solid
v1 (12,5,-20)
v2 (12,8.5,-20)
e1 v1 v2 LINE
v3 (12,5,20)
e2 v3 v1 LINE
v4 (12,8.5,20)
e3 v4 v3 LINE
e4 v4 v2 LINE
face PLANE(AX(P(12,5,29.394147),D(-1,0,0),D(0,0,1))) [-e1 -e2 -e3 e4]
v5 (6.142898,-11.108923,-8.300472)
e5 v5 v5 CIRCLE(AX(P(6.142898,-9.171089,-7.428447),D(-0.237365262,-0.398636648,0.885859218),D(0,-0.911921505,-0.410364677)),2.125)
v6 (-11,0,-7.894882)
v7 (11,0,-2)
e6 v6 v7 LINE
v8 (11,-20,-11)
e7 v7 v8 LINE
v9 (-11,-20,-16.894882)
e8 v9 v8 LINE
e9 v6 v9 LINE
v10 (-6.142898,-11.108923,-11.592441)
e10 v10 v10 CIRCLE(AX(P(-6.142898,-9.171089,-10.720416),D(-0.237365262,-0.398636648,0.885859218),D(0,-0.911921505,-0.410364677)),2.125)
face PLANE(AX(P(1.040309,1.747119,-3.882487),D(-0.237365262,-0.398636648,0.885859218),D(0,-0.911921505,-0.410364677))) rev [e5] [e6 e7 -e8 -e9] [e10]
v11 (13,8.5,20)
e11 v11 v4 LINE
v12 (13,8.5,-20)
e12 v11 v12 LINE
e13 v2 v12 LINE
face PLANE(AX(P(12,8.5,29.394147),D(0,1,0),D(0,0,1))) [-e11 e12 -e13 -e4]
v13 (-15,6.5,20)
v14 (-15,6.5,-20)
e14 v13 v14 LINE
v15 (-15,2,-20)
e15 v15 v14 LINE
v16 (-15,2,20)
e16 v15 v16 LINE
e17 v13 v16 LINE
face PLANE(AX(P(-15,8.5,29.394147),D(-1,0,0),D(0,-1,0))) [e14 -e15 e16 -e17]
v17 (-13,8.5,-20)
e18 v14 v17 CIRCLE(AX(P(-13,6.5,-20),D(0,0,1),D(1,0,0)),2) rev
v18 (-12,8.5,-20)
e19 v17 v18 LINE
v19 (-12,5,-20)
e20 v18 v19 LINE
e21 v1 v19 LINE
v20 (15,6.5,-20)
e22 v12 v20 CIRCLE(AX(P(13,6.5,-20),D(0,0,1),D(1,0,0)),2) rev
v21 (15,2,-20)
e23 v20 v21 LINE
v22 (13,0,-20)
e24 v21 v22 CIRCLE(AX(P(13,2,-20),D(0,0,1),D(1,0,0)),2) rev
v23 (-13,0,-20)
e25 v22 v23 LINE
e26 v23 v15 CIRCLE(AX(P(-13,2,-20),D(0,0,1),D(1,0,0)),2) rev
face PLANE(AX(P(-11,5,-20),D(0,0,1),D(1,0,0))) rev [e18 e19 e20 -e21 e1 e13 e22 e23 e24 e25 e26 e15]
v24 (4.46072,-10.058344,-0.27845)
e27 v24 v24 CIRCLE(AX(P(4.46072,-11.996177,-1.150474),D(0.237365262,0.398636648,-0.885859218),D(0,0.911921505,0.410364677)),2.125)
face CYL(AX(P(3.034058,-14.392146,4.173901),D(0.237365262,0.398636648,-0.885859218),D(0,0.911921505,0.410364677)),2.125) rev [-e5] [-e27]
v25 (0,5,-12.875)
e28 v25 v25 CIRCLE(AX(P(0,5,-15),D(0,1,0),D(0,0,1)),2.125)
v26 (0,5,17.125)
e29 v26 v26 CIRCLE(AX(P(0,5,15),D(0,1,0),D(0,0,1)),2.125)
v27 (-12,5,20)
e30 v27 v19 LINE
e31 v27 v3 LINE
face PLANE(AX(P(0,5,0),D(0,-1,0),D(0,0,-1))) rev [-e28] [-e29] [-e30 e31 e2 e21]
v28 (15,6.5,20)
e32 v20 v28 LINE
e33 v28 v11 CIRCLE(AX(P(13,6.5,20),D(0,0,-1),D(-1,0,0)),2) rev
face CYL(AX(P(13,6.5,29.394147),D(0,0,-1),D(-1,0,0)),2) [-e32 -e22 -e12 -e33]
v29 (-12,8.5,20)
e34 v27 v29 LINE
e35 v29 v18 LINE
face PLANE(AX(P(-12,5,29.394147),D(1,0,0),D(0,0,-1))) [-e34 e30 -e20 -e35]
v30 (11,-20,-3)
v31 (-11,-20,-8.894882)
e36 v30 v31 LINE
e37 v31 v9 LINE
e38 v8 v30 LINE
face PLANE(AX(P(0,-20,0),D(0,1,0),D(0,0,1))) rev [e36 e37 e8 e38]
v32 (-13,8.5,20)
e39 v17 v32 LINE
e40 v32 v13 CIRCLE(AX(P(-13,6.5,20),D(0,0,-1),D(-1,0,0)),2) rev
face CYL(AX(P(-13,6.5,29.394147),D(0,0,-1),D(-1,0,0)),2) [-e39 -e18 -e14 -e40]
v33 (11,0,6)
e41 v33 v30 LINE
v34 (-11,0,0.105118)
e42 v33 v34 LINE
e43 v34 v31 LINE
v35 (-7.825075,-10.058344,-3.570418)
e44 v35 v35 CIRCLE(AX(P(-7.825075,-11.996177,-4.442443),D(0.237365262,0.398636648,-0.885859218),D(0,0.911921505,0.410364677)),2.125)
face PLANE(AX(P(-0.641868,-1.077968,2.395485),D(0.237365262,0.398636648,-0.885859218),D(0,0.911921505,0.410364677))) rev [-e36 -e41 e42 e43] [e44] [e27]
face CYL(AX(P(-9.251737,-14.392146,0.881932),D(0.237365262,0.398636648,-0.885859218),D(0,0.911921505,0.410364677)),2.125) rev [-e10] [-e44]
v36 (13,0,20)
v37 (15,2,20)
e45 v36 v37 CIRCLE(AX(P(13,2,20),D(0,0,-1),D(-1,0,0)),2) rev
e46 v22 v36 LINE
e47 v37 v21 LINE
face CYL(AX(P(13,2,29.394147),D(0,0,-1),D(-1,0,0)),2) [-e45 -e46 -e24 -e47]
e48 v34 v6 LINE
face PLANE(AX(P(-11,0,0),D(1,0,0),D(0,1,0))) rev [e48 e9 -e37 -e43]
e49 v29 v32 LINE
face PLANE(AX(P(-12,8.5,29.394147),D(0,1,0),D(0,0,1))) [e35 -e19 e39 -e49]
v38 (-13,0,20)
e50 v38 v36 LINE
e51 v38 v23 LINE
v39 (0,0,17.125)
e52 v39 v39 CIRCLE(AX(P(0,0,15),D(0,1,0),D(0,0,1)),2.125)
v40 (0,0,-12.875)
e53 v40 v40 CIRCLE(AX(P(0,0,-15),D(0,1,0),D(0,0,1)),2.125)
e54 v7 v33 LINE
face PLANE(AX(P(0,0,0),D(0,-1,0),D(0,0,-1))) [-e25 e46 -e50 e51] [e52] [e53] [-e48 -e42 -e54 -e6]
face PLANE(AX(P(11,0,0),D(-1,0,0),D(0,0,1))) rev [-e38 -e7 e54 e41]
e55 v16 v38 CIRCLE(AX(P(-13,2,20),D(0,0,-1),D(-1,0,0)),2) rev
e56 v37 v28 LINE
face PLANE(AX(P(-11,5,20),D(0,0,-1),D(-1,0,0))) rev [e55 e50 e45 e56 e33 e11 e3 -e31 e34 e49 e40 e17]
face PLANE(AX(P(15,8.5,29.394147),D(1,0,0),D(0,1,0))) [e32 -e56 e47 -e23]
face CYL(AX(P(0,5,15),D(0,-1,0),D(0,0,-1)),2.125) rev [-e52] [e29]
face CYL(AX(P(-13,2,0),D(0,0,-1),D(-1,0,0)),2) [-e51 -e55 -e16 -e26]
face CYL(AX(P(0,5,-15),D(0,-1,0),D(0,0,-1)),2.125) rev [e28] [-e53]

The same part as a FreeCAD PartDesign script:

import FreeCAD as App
import Part
import Sketcher

V = App.Vector
Q = App.Units.Quantity


def edges_at(feature, points):
    """Names of the edges that pass closest to the given points."""
    edges = feature.Shape.Edges
    near = lambda p: min(range(len(edges)), key=lambda i: edges[i].distToShape(Part.Vertex(*p))[0])
    return sorted({f"Edge{near(p) + 1}" for p in points})


def add_polygon(sketch, points):
    """Adds a closed chain of lines whose ends are joined by coincident constraints."""
    first, n = sketch.GeometryCount, len(points)
    for a, b in zip(points, points[1:] + points[:1]):
        sketch.addGeometry(Part.LineSegment(App.Vector(*a, 0), App.Vector(*b, 0)), False)
    for i in range(n):
        sketch.addConstraint(Sketcher.Constraint("Coincident", first + i, 2, first + (i + 1) % n, 1))

doc = App.newDocument("Part")
params = doc.addObject("Spreadsheet::Sheet", "Params")
for row, (alias, value) in enumerate([
    ("sketch1_diameter", "4.25 mm"),
    ("sketch1_width", "22 mm"),
    ("sketch1_height", "40 mm"),
    ("pad1_length", "5 mm"),
    ("sketch2_width", "1 mm"),
    ("sketch2_width2", "3 mm"),
    ("sketch2_height", "5 mm"),
    ("sketch2_height2", "3.5 mm"),
    ("pad2_length", "40 mm"),
    ("fillet_radius", "2 mm"),
    ("sketch3_height", "8 mm"),
    ("sketch4_height", "8 mm"),
    ("sketch5_diameter", "4.25 mm"),
    ("pocket1_length", "7.086874 mm"),
], start=1):
    params.set(f"A{row}", alias)
    params.set(f"B{row}", "=" + value)
    params.setAlias(f"B{row}", alias)

body = doc.addObject("PartDesign::Body", "Body")

sketch1 = doc.addObject("Sketcher::SketchObject", "Sketch")
body.addObject(sketch1)
sketch1.AttachmentSupport = (doc.XZ_Plane, [""])
sketch1.MapMode = "FlatFace"
add_polygon(sketch1, [(-11, -20), (-11, 20), (11, 20), (11, -20)])
sketch1.addGeometry(Part.Circle(V(0, 15, 0), V(0, 0, 1), 2.1), False)
sketch1.addGeometry(Part.Circle(V(0, -15, 0), V(0, 0, 1), 2.1), False)
sketch1.addConstraint(Sketcher.Constraint("Vertical", 0))
sketch1.addConstraint(Sketcher.Constraint("Horizontal", 1))
sketch1.addConstraint(Sketcher.Constraint("Vertical", 2))
sketch1.addConstraint(Sketcher.Constraint("Horizontal", 3))
sketch1.addConstraint(Sketcher.Constraint("Equal", 4, 5))
sketch1.addConstraint(Sketcher.Constraint("Symmetric", 4, 3, 5, 3, -1, 1))
sketch1.addConstraint(Sketcher.Constraint("Symmetric", 0, 2, 2, 2, -1, 1))
sketch1.addConstraint(Sketcher.Constraint("PointOnObject", 4, 3, -2))
sketch1.addConstraint(Sketcher.Constraint("Diameter", 4, Q("4.25 mm")))
sketch1.addConstraint(Sketcher.Constraint("DistanceX", 1, 1, 1, 2, Q("22 mm")))
sketch1.addConstraint(Sketcher.Constraint("DistanceY", 0, 1, 0, 2, Q("40 mm")))
sketch1.addConstraint(Sketcher.Constraint("DistanceY", -1, 1, 4, 3, Q("15 mm")))
sketch1.setExpression("Constraints[12]", "Params.sketch1_diameter")
sketch1.setExpression("Constraints[13]", "Params.sketch1_width")
sketch1.setExpression("Constraints[14]", "Params.sketch1_height")
pad1 = doc.addObject("PartDesign::Pad", "Pad")
body.addObject(pad1)
pad1.Profile = sketch1
pad1.setExpression("Length", "Params.pad1_length")
pad1.Reversed = True

sketch2 = doc.addObject("Sketcher::SketchObject", "Sketch001")
body.addObject(sketch2)
sketch2.AttachmentSupport = (doc.XY_Plane, [""])
sketch2.MapMode = "FlatFace"
sketch2.AttachmentOffset = App.Placement(V(0, 0, -20), App.Rotation())
add_polygon(sketch2, [(11, 5), (12, 5), (12, 8.5), (15, 8.5), (15, 0), (11, 0)])
add_polygon(sketch2, [(-11, 5), (-11, 0), (-15, 0), (-15, 8.5), (-12, 8.5), (-12, 5)])
sketch2.addConstraint(Sketcher.Constraint("Horizontal", 0))
sketch2.addConstraint(Sketcher.Constraint("Vertical", 1))
sketch2.addConstraint(Sketcher.Constraint("Horizontal", 2))
sketch2.addConstraint(Sketcher.Constraint("Vertical", 3))
sketch2.addConstraint(Sketcher.Constraint("Horizontal", 4))
sketch2.addConstraint(Sketcher.Constraint("Vertical", 5))
sketch2.addConstraint(Sketcher.Constraint("Vertical", 6))
sketch2.addConstraint(Sketcher.Constraint("Horizontal", 7))
sketch2.addConstraint(Sketcher.Constraint("Vertical", 8))
sketch2.addConstraint(Sketcher.Constraint("Horizontal", 9))
sketch2.addConstraint(Sketcher.Constraint("Vertical", 10))
sketch2.addConstraint(Sketcher.Constraint("Horizontal", 11))
sketch2.addConstraint(Sketcher.Constraint("Symmetric", 4, 2, 6, 2, -1, 1))
sketch2.addConstraint(Sketcher.Constraint("Symmetric", 3, 2, 7, 2, -2))
sketch2.addConstraint(Sketcher.Constraint("Symmetric", 1, 2, 9, 2, -2))
sketch2.addConstraint(Sketcher.Constraint("Horizontal", 5, 2, 10, 2))
sketch2.addConstraint(Sketcher.Constraint("DistanceX", 0, 1, 0, 2, Q("1 mm")))
sketch2.addConstraint(Sketcher.Constraint("DistanceX", 2, 1, 2, 2, Q("3 mm")))
sketch2.addConstraint(Sketcher.Constraint("DistanceY", 5, 1, 5, 2, Q("5 mm")))
sketch2.addConstraint(Sketcher.Constraint("DistanceY", 1, 1, 1, 2, Q("3.5 mm")))
sketch2.addConstraint(Sketcher.Constraint("DistanceX", -1, 1, 0, 2, Q("12 mm")))
sketch2.setExpression("Constraints[28]", "Params.sketch2_width")
sketch2.setExpression("Constraints[29]", "Params.sketch2_width2")
sketch2.setExpression("Constraints[30]", "Params.sketch2_height")
sketch2.setExpression("Constraints[31]", "Params.sketch2_height2")
pad2 = doc.addObject("PartDesign::Pad", "Pad001")
body.addObject(pad2)
pad2.Profile = sketch2
pad2.setExpression("Length", "Params.pad2_length")
doc.recompute()

fillet = doc.addObject("PartDesign::Fillet", "Fillet")
body.addObject(fillet)
fillet.Base = (pad2, edges_at(pad2, [
    (15, 0, 0),
    (15, 8.5, 0),
    (-15, 0, 0),
    (-15, 8.5, 0),
]))
fillet.setExpression("Radius", "Params.fillet_radius")

sketch3 = doc.addObject("Sketcher::SketchObject", "Sketch002")
body.addObject(sketch3)
sketch3.AttachmentSupport = (doc.XZ_Plane, [""])
sketch3.MapMode = "FlatFace"
add_polygon(sketch3, [(11, 6), (-11, 0), (-11, -8), (11, -2)])
sketch3.addConstraint(Sketcher.Constraint("Vertical", 1))
sketch3.addConstraint(Sketcher.Constraint("Vertical", 3))
sketch3.addConstraint(Sketcher.Constraint("Parallel", 0, 2))
sketch3.addConstraint(Sketcher.Constraint("DistanceY", 1, 2, 1, 1, Q("8 mm")))
sketch3.addConstraint(Sketcher.Constraint("Angle", 0, Q("-165 deg")))
sketch3.addConstraint(Sketcher.Constraint("DistanceX", 0, 2, -1, 1, Q("11 mm")))
sketch3.addConstraint(Sketcher.Constraint("DistanceX", -1, 1, 2, 2, Q("11 mm")))
sketch3.addConstraint(Sketcher.Constraint("DistanceY", 2, 2, -1, 1, Q("2 mm")))
sketch3.setExpression("Constraints[7]", "Params.sketch3_height")

sketch4 = doc.addObject("Sketcher::SketchObject", "Sketch003")
body.addObject(sketch4)
sketch4.AttachmentSupport = (doc.XZ_Plane, [""])
sketch4.MapMode = "FlatFace"
sketch4.AttachmentOffset = App.Placement(V(0, 0, 20), App.Rotation())
add_polygon(sketch4, [(11, -11), (11, -3), (-11, -9), (-11, -17)])
sketch4.addConstraint(Sketcher.Constraint("Vertical", 0))
sketch4.addConstraint(Sketcher.Constraint("Vertical", 2))
sketch4.addConstraint(Sketcher.Constraint("Parallel", 1, 3))
sketch4.addConstraint(Sketcher.Constraint("DistanceY", 0, 1, 0, 2, Q("8 mm")))
sketch4.addConstraint(Sketcher.Constraint("Angle", 1, Q("-165 deg")))
sketch4.addConstraint(Sketcher.Constraint("DistanceX", -1, 1, 0, 2, Q("11 mm")))
sketch4.addConstraint(Sketcher.Constraint("DistanceY", 0, 2, -1, 1, Q("3 mm")))
sketch4.addConstraint(Sketcher.Constraint("DistanceX", 1, 2, -1, 1, Q("11 mm")))
sketch4.setExpression("Constraints[7]", "Params.sketch4_height")

additiveloft = doc.addObject("PartDesign::AdditiveLoft", "AdditiveLoft")
body.addObject(additiveloft)
additiveloft.Profile = sketch3
additiveloft.Sections = [sketch4]

sketch5 = doc.addObject("Sketcher::SketchObject", "Sketch004")
body.addObject(sketch5)
sketch5.Placement = App.Placement(V(1.040309, 1.747119, -3.882487), App.Rotation(V(0.971420471, -0.097406319, 0.216458487), V(0, 0.911921504, 0.410364677), V(-0.237365262, -0.398636648, 0.885859218), "ZXY"))
sketch5.addGeometry(Part.Circle(V(5.3, -11.4, 0), V(0, 0, 1), 2.1), False)
sketch5.addGeometry(Part.Circle(V(-7.4, -12.8, 0), V(0, 0, 1), 2.1), False)
sketch5.addConstraint(Sketcher.Constraint("Equal", 0, 1))
sketch5.addConstraint(Sketcher.Constraint("Diameter", 0, Q("4.25 mm")))
sketch5.addConstraint(Sketcher.Constraint("DistanceX", -1, 1, 0, 3, Q("5.252708 mm")))
sketch5.addConstraint(Sketcher.Constraint("DistanceX", 1, 3, -1, 1, Q("7.394539 mm")))
sketch5.addConstraint(Sketcher.Constraint("DistanceY", 0, 3, -1, 1, Q("11.411686 mm")))
sketch5.addConstraint(Sketcher.Constraint("DistanceY", 1, 3, -1, 1, Q("12.762594 mm")))
sketch5.setExpression("Constraints[1]", "Params.sketch5_diameter")
pocket1 = doc.addObject("PartDesign::Pocket", "Pocket")
body.addObject(pocket1)
pocket1.Profile = sketch5
pocket1.setExpression("Length", "Params.pocket1_length")
pocket1.Reversed = True

doc.recompute()
